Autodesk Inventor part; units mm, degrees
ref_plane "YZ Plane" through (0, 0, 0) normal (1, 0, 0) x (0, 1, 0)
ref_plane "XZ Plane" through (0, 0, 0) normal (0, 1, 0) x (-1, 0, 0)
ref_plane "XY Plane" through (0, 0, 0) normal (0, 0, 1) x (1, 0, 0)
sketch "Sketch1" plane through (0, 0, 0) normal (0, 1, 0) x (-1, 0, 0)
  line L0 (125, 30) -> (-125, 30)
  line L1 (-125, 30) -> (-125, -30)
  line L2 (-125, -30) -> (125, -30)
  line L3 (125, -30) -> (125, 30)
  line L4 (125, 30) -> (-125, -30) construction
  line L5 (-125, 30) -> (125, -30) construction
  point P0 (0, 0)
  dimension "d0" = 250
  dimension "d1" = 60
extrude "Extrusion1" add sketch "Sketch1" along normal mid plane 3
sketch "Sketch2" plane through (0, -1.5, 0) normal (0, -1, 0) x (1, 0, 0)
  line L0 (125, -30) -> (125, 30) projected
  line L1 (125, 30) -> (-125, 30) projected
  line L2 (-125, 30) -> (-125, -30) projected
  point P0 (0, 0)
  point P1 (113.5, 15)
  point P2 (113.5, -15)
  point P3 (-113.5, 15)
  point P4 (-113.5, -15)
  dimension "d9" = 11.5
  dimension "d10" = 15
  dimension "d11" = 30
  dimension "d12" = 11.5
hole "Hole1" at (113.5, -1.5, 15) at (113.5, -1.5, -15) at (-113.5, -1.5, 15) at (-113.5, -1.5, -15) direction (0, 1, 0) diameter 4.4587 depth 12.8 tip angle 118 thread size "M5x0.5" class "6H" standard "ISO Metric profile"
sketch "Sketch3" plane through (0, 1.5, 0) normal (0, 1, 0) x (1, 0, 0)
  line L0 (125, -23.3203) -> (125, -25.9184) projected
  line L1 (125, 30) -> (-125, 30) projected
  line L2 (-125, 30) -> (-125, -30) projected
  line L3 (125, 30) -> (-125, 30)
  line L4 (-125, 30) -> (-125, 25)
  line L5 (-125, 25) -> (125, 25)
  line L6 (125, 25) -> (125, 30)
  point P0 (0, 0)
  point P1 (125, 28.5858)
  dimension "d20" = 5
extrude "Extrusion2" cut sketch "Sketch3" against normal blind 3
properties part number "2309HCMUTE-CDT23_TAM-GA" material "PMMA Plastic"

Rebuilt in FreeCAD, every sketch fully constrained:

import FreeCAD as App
import Part
import Sketcher


def add_polygon(sketch, points):
    """Adds a closed chain of lines whose ends are joined by coincident constraints."""
    first, n = sketch.GeometryCount, len(points)
    for a, b in zip(points, points[1:] + points[:1]):
        sketch.addGeometry(Part.LineSegment(App.Vector(*a, 0), App.Vector(*b, 0)), False)
    for i in range(n):
        sketch.addConstraint(Sketcher.Constraint("Coincident", first + i, 2, first + (i + 1) % n, 1))

doc = App.newDocument("Part")
body = doc.addObject("PartDesign::Body", "Body")

# Sketch on XZ plane
sketch1 = body.newObject("Sketcher::SketchObject", "Sketch")
sketch1.AttachmentSupport = (doc.getObject("XZ_Plane"), [""])
sketch1.MapMode = "FlatFace"
add_polygon(sketch1, [(-125, -30), (-125, 30), (125, 30), (125, -30)])  # lines 0-3
sketch1.addConstraint([
    Sketcher.Constraint("Vertical", 0),
    Sketcher.Constraint("Horizontal", 1),
    Sketcher.Constraint("Vertical", 2),
    Sketcher.Constraint("Horizontal", 3),
    Sketcher.Constraint("Symmetric", 0, 2, 2, 2, -1, 1),
    Sketcher.Constraint("DistanceX", 1, 1, 1, 2, 250.0),
    Sketcher.Constraint("DistanceY", 0, 1, 0, 2, 60.0),
])
pad1 = body.newObject("PartDesign::Pad", "Pad")
pad1.Profile = sketch1
pad1.Length = 3
pad1.Midplane = True

# Sketch on XZ plane
sketch2 = body.newObject("Sketcher::SketchObject", "Sketch001")
sketch2.AttachmentSupport = (doc.getObject("XZ_Plane"), [""])
sketch2.MapMode = "FlatFace"
sketch2.AttachmentOffset = App.Placement(App.Vector(0, 0, 1.5), App.Rotation())
sketch2.addGeometry([
    Part.Circle(App.Vector(113.5, 15, 0), App.Vector(0, 0, 1), 2.2),
    Part.Circle(App.Vector(113.5, -15, 0), App.Vector(0, 0, 1), 2.2),
    Part.Circle(App.Vector(-113.5, 15, 0), App.Vector(0, 0, 1), 2.2),
    Part.Circle(App.Vector(-113.5, -15, 0), App.Vector(0, 0, 1), 2.2),
], False)
sketch2.addConstraint([
    Sketcher.Constraint("Equal", 0, 1),
    Sketcher.Constraint("Equal", 1, 2),
    Sketcher.Constraint("Equal", 2, 3),
    Sketcher.Constraint("Symmetric", 1, 3, 2, 3, -1, 1),
    Sketcher.Constraint("Symmetric", 0, 3, 3, 3, -1, 1),
    Sketcher.Constraint("Symmetric", 0, 3, 2, 3, -2),
    Sketcher.Constraint("DistanceY", -1, 1, 0, 3, 15.0),
    Sketcher.Constraint("DistanceX", 2, 3, 0, 3, 227.0),
    Sketcher.Constraint("Diameter", 0, 4.4587),
])
doc.recompute()
hole = body.newObject("PartDesign::Hole", "Hole")
hole.Profile = sketch2
hole.ThreadType = "None"
hole.Diameter = 4.4587
hole.DepthType = "Dimension"
hole.Depth = 12.8
hole.DrillPoint = "Angled"
hole.DrillPointAngle = 118

# Sketch on XZ plane
sketch3 = body.newObject("Sketcher::SketchObject", "Sketch002")
sketch3.AttachmentSupport = (doc.getObject("XZ_Plane"), [""])
sketch3.MapMode = "FlatFace"
sketch3.AttachmentOffset = App.Placement(App.Vector(0, 0, -1.5), App.Rotation())
add_polygon(sketch3, [(125, -25), (125, -30), (-125, -30), (-125, -25)])  # lines 0-3
sketch3.addConstraint([
    Sketcher.Constraint("Vertical", 0),
    Sketcher.Constraint("Horizontal", 1),
    Sketcher.Constraint("Vertical", 2),
    Sketcher.Constraint("Horizontal", 3),
    Sketcher.Constraint("DistanceY", 0, 2, 0, 1, 5.0),
    Sketcher.Constraint("DistanceX", 1, 2, 1, 1, 250.0),
    Sketcher.Constraint("DistanceX", -1, 1, 0, 2, 125.0),
    Sketcher.Constraint("DistanceY", 0, 2, -1, 1, 30.0),
])
pocket1 = body.newObject("PartDesign::Pocket", "Pocket")
pocket1.Profile = sketch3
pocket1.Length = 3
pocket1.Reversed = True

doc.recompute()
